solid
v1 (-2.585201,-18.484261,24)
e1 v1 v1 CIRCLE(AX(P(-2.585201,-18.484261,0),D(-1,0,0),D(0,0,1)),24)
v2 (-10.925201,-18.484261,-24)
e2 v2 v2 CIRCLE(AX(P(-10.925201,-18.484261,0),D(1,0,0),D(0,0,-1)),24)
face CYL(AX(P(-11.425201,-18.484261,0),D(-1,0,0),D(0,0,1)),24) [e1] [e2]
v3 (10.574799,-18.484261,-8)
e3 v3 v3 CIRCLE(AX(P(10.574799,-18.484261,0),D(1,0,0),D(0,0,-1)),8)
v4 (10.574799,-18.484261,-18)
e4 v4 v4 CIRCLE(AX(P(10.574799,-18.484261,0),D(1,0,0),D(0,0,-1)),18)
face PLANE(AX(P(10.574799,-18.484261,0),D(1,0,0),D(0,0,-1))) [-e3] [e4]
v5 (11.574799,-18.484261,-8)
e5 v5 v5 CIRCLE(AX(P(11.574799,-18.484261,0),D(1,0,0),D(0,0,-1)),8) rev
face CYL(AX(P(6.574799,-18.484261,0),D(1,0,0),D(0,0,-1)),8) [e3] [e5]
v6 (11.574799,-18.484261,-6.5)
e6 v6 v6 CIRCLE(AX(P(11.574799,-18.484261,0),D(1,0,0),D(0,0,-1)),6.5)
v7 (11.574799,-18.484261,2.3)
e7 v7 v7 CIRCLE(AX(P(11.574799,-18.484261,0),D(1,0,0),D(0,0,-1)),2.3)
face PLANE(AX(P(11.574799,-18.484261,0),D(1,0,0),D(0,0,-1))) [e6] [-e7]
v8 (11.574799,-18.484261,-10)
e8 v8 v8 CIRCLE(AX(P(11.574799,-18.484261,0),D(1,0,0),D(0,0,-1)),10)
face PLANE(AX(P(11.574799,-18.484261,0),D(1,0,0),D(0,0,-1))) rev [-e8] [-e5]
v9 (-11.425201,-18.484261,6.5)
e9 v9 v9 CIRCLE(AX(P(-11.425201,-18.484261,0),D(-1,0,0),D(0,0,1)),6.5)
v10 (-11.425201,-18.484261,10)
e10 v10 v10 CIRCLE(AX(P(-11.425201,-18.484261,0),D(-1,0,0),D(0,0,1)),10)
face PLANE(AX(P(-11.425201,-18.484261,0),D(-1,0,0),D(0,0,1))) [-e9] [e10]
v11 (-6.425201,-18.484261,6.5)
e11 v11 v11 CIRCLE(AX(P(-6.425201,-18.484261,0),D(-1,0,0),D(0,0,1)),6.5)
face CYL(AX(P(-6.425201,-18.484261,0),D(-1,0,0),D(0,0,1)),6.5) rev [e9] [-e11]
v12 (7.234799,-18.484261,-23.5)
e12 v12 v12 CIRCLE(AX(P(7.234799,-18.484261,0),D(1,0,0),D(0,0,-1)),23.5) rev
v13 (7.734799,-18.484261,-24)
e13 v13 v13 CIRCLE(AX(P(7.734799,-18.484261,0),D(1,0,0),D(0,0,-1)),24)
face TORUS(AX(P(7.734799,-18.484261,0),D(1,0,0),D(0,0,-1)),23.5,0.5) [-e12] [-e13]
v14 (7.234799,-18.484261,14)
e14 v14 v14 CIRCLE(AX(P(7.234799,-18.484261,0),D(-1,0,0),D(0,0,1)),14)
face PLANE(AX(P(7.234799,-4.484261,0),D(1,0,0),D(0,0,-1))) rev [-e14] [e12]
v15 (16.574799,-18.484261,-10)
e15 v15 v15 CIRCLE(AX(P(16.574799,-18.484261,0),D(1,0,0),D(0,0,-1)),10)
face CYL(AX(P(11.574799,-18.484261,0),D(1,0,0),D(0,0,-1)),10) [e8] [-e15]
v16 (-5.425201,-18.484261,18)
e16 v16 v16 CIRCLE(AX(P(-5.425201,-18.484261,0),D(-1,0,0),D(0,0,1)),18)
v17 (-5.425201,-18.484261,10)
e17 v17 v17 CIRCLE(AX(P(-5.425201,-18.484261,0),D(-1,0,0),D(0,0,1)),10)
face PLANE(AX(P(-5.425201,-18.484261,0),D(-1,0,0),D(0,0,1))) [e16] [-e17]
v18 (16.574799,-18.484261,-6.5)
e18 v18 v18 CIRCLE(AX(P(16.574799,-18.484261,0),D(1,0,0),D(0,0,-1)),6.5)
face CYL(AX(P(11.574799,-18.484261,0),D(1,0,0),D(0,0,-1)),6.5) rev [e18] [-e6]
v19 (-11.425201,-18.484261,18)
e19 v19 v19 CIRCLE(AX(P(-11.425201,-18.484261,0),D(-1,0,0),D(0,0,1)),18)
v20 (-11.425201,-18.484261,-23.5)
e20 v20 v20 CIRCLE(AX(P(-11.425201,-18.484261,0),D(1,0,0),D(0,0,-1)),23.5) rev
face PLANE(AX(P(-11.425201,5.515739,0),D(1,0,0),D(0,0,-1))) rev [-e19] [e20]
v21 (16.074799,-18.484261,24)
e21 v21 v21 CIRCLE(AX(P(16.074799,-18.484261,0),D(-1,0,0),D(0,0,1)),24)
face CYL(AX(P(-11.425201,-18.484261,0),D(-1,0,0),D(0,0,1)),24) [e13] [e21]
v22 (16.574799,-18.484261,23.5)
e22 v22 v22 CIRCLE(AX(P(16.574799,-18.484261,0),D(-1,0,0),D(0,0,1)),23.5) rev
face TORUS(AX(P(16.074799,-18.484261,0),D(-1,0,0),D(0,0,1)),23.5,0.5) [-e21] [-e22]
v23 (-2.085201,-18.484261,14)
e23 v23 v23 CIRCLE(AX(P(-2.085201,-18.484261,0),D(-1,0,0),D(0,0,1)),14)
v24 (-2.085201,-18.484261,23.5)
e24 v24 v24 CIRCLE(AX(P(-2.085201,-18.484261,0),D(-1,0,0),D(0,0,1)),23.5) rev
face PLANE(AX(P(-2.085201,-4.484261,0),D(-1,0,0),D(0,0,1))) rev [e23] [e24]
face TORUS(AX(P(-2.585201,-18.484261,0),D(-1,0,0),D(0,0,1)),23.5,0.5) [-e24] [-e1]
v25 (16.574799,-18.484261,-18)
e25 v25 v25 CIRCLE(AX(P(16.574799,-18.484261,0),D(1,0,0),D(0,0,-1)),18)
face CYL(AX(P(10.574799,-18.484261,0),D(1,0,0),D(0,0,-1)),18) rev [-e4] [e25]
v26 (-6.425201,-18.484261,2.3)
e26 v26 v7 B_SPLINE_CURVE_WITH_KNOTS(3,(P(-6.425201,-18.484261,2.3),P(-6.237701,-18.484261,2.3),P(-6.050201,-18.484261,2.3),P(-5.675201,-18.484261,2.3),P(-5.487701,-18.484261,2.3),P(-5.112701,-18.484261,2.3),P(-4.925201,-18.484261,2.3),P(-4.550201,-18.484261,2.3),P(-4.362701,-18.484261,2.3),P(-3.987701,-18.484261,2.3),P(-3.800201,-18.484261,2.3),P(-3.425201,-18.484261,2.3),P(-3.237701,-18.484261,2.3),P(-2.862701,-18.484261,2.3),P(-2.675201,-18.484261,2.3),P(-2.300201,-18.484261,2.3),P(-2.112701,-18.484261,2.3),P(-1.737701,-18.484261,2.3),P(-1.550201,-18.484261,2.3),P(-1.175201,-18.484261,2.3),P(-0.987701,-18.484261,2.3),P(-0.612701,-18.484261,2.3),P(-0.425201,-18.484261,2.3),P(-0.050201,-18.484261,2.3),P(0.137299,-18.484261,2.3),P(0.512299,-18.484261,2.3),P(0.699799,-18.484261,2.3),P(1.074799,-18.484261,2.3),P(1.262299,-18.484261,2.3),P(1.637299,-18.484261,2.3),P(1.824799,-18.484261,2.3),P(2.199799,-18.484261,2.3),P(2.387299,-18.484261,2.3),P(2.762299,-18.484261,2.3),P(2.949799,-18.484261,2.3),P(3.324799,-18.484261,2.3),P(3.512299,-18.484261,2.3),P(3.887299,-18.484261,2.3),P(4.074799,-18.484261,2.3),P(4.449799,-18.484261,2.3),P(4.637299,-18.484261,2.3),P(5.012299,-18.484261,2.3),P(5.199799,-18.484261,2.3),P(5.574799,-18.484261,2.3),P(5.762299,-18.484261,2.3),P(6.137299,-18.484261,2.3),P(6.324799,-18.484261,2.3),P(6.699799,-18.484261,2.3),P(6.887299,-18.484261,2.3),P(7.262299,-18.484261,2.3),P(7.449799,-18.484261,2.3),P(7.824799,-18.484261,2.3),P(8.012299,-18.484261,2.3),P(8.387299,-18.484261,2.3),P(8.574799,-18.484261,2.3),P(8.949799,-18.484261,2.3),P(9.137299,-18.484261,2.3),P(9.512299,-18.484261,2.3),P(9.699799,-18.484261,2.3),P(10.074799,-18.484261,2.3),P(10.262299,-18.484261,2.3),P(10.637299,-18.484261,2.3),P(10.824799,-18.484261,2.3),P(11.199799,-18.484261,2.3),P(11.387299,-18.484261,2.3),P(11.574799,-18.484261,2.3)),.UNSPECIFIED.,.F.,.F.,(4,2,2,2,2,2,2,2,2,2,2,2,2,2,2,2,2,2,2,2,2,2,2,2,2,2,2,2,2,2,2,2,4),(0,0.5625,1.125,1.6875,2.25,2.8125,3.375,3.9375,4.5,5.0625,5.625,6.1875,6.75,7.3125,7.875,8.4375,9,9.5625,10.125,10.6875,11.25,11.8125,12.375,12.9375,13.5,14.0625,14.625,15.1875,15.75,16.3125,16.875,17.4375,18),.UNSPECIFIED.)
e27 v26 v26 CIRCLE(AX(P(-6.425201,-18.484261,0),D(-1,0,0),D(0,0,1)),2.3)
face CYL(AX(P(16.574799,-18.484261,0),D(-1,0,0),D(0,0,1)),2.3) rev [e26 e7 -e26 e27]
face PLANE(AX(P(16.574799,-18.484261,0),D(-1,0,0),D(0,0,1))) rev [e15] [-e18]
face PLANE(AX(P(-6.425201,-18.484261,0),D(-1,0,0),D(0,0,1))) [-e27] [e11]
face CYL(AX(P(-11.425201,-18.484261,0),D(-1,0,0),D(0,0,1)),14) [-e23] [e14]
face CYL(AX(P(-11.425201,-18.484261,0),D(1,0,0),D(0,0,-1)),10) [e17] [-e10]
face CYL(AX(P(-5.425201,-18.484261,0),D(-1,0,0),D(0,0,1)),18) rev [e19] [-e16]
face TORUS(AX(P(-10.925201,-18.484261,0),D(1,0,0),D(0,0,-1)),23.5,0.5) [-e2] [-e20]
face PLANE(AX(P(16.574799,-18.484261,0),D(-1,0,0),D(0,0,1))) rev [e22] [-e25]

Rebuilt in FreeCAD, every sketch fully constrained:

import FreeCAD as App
import Part
import Sketcher
from FreeCAD import Vector
Q = App.Units.Quantity


def edges_at(feature, points):
    """Names of the edges that pass closest to the given points."""
    edges = feature.Shape.Edges
    near = lambda p: min(range(len(edges)), key=lambda i: edges[i].distToShape(Part.Vertex(*p))[0])
    return sorted({f"Edge{near(p) + 1}" for p in points})

doc = App.newDocument("Part")
params = doc.addObject("Spreadsheet::Sheet", "Params")
for row, (alias, value) in enumerate([
    ("sketch1_width", "28 mm"),
    ("sketch1_height", "10 mm"),
    ("sketch1_height2", "24 mm"),
    ("sketch1_width2", "9.32 mm"),
    ("revolution_angle", "360 deg"),
    ("sketch2_diameter", "4 mm"),
    ("fillet_radius", "0.5 mm"),
    ("sketch3_diameter", "36 mm"),
    ("sketch3_diameter2", "12 mm"),
    ("pocket2_length", "6 mm"),
    ("sketch4_diameter", "36 mm"),
    ("pocket3_length", "6 mm"),
    ("sketch5_diameter", "20 mm"),
    ("pad1_length", "6 mm"),
    ("sketch6_diameter", "16 mm"),
    ("pad2_length", "10 mm"),
    ("sketch7_diameter", "13 mm"),
    ("pocket4_length", "5 mm"),
    ("sketch8_diameter", "20 mm"),
    ("pad3_length", "5 mm"),
    ("sketch9_diameter", "13 mm"),
    ("pocket5_length", "5 mm"),
    ("sketch10_diameter", "4.6 mm"),
], start=1):
    params.set(f"A{row}", alias)
    params.set(f"B{row}", "=" + value)
    params.setAlias(f"B{row}", alias)

body = doc.addObject("PartDesign::Body", "Body")

sketch1 = body.newObject("Sketcher::SketchObject", "Sketch")
sketch1.AttachmentSupport = (doc.getObject("XY_Plane"), [""])
sketch1.MapMode = "FlatFace"
sketch1.addGeometry(Part.LineSegment(Vector(7.234799, -4.484261, 0), Vector(-2.085201, -4.484261, 0)), False)
sketch1.addGeometry(Part.LineSegment(Vector(-2.085201, -4.484261, 0), Vector(-2.085201, 5.515739, 0)), False)
sketch1.addGeometry(Part.LineSegment(Vector(-2.085201, 5.515739, 0), Vector(-11.425201, 5.515739, 0)), False)
sketch1.addGeometry(Part.LineSegment(Vector(-11.425201, 5.515739, 0), Vector(-11.425201, -18.484261, 0)), False)
sketch1.addGeometry(Part.LineSegment(Vector(-11.425201, -18.484261, 0), Vector(16.574799, -18.484261, 0)), False)
sketch1.addGeometry(Part.LineSegment(Vector(16.574799, -18.484261, 0), Vector(16.574799, 5.515739, 0)), False)
sketch1.addGeometry(Part.LineSegment(Vector(16.574799, 5.515739, 0), Vector(7.234799, 5.515739, 0)), False)
sketch1.addGeometry(Part.LineSegment(Vector(7.234799, 5.515739, 0), Vector(7.234799, -4.484261, 0)), False)
sketch1.addGeometry(Part.LineSegment(Vector(-11.425201, -18.484261, 0), Vector(16.574799, -18.484261, 0)), True)
sketch1.addConstraint(Sketcher.Constraint("Coincident", 0, 2, 1, 1))
sketch1.addConstraint(Sketcher.Constraint("Coincident", 1, 2, 2, 1))
sketch1.addConstraint(Sketcher.Constraint("Coincident", 2, 2, 3, 1))
sketch1.addConstraint(Sketcher.Constraint("Coincident", 3, 2, 4, 1))
sketch1.addConstraint(Sketcher.Constraint("Coincident", 4, 2, 5, 1))
sketch1.addConstraint(Sketcher.Constraint("Coincident", 5, 2, 6, 1))
sketch1.addConstraint(Sketcher.Constraint("Coincident", 6, 2, 7, 1))
sketch1.addConstraint(Sketcher.Constraint("Coincident", 7, 2, 0, 1))
sketch1.addConstraint(Sketcher.Constraint("Horizontal", 0))
sketch1.addConstraint(Sketcher.Constraint("Vertical", 1))
sketch1.addConstraint(Sketcher.Constraint("Horizontal", 2))
sketch1.addConstraint(Sketcher.Constraint("Vertical", 3))
sketch1.addConstraint(Sketcher.Constraint("Horizontal", 4))
sketch1.addConstraint(Sketcher.Constraint("Vertical", 5))
sketch1.addConstraint(Sketcher.Constraint("Horizontal", 6))
sketch1.addConstraint(Sketcher.Constraint("Vertical", 7))
sketch1.addConstraint(Sketcher.Constraint("Horizontal", 8))
sketch1.addConstraint(Sketcher.Constraint("Coincident", 8, 1, 3, 2))
sketch1.addConstraint(Sketcher.Constraint("Horizontal", 2, 2, 5, 2))
sketch1.addConstraint(Sketcher.Constraint("Vertical", 5, 2, 8, 2))
sketch1.addConstraint(Sketcher.Constraint("Equal", 2, 6))
sketch1.addConstraint(Sketcher.Constraint("DistanceX", 4, 1, 4, 2, Q("28 mm")))
sketch1.addConstraint(Sketcher.Constraint("DistanceY", 1, 1, 1, 2, Q("10 mm")))
sketch1.addConstraint(Sketcher.Constraint("DistanceY", 3, 2, 3, 1, Q("24 mm")))
sketch1.addConstraint(Sketcher.Constraint("DistanceX", 0, 2, 0, 1, Q("9.32 mm")))
sketch1.addConstraint(Sketcher.Constraint("DistanceX", 0, 2, -1, 1, Q("2.085201 mm")))
sketch1.addConstraint(Sketcher.Constraint("DistanceY", 0, 2, -1, 1, Q("4.484261 mm")))
sketch1.setExpression("Constraints[21]", "Params.sketch1_width")
sketch1.setExpression("Constraints[22]", "Params.sketch1_height")
sketch1.setExpression("Constraints[23]", "Params.sketch1_height2")
sketch1.setExpression("Constraints[24]", "Params.sketch1_width2")
revolution = body.newObject("PartDesign::Revolution", "Revolution")
revolution.Profile = sketch1
revolution.ReferenceAxis = (sketch1, ["Axis0"])
revolution.setExpression("Angle", "Params.revolution_angle")

sketch2 = body.newObject("Sketcher::SketchObject", "Sketch001")
sketch2.AttachmentSupport = (doc.getObject("YZ_Plane"), [""])
sketch2.MapMode = "FlatFace"
sketch2.AttachmentOffset = App.Placement(Vector(0, 0, 16.574799), App.Rotation())
sketch2.addGeometry(Part.Circle(Vector(-18.484261, 0, 0), Vector(0, 0, 1), 2), False)
sketch2.addConstraint(Sketcher.Constraint("PointOnObject", 0, 3, -1))
sketch2.addConstraint(Sketcher.Constraint("Diameter", 0, Q("4 mm")))
sketch2.addConstraint(Sketcher.Constraint("DistanceX", 0, 3, -1, 1, Q("18.484261 mm")))
sketch2.setExpression("Constraints[1]", "Params.sketch2_diameter")
pocket1 = body.newObject("PartDesign::Pocket", "Pocket")
pocket1.Profile = sketch2
pocket1.Type = "ThroughAll"
doc.recompute()

fillet = body.newObject("PartDesign::Fillet", "Fillet")
fillet.Base = (pocket1, edges_at(pocket1, [
    (-2.085, -18.484, -24),
    (7.235, -18.484, -24),
    (16.575, -18.484, -24),
    (-11.425, -18.484, -24),
]))
fillet.setExpression("Radius", "Params.fillet_radius")

sketch3 = body.newObject("Sketcher::SketchObject", "Sketch002")
sketch3.AttachmentSupport = (doc.getObject("YZ_Plane"), [""])
sketch3.MapMode = "FlatFace"
sketch3.AttachmentOffset = App.Placement(Vector(0, 0, 16.574799), App.Rotation())
sketch3.addGeometry(Part.Circle(Vector(-18.484261, 0, 0), Vector(0, 0, 1), 18), False)
sketch3.addGeometry(Part.Circle(Vector(-18.484261, 0, 0), Vector(0, 0, 1), 6), False)
sketch3.addConstraint(Sketcher.Constraint("Coincident", 1, 3, 0, 3))
sketch3.addConstraint(Sketcher.Constraint("PointOnObject", 0, 3, -1))
sketch3.addConstraint(Sketcher.Constraint("Diameter", 0, Q("36 mm")))
sketch3.addConstraint(Sketcher.Constraint("Diameter", 1, Q("12 mm")))
sketch3.addConstraint(Sketcher.Constraint("DistanceX", 0, 3, -1, 1, Q("18.484261 mm")))
sketch3.setExpression("Constraints[2]", "Params.sketch3_diameter")
sketch3.setExpression("Constraints[3]", "Params.sketch3_diameter2")
pocket2 = body.newObject("PartDesign::Pocket", "Pocket001")
pocket2.Profile = sketch3
pocket2.setExpression("Length", "Params.pocket2_length")

sketch4 = body.newObject("Sketcher::SketchObject", "Sketch003")
sketch4.AttachmentSupport = (doc.getObject("YZ_Plane"), [""])
sketch4.MapMode = "FlatFace"
sketch4.AttachmentOffset = App.Placement(Vector(0, 0, -5.425201), App.Rotation())
sketch4.addGeometry(Part.Circle(Vector(-18.484261, 0, 0), Vector(0, 0, 1), 18), False)
sketch4.addConstraint(Sketcher.Constraint("PointOnObject", 0, 3, -1))
sketch4.addConstraint(Sketcher.Constraint("Diameter", 0, Q("36 mm")))
sketch4.addConstraint(Sketcher.Constraint("DistanceX", 0, 3, -1, 1, Q("18.484261 mm")))
sketch4.setExpression("Constraints[1]", "Params.sketch4_diameter")
pocket3 = body.newObject("PartDesign::Pocket", "Pocket002")
pocket3.Profile = sketch4
pocket3.setExpression("Length", "Params.pocket3_length")

sketch5 = body.newObject("Sketcher::SketchObject", "Sketch004")
sketch5.AttachmentSupport = (doc.getObject("YZ_Plane"), [""])
sketch5.MapMode = "FlatFace"
sketch5.AttachmentOffset = App.Placement(Vector(0, 0, -5.425201), App.Rotation())
sketch5.addGeometry(Part.Circle(Vector(-18.484261, 0, 0), Vector(0, 0, 1), 10), False)
sketch5.addConstraint(Sketcher.Constraint("PointOnObject", 0, 3, -1))
sketch5.addConstraint(Sketcher.Constraint("Diameter", 0, Q("20 mm")))
sketch5.addConstraint(Sketcher.Constraint("DistanceX", 0, 3, -1, 1, Q("18.484261 mm")))
sketch5.setExpression("Constraints[1]", "Params.sketch5_diameter")
pad1 = body.newObject("PartDesign::Pad", "Pad")
pad1.Profile = sketch5
pad1.setExpression("Length", "Params.pad1_length")
pad1.Reversed = True

sketch6 = body.newObject("Sketcher::SketchObject", "Sketch005")
sketch6.AttachmentSupport = (doc.getObject("YZ_Plane"), [""])
sketch6.MapMode = "FlatFace"
sketch6.AttachmentOffset = App.Placement(Vector(0, 0, 16.574799), App.Rotation())
sketch6.addGeometry(Part.Circle(Vector(-18.484261, 0, 0), Vector(0, 0, 1), 8), False)
sketch6.addConstraint(Sketcher.Constraint("PointOnObject", 0, 3, -1))
sketch6.addConstraint(Sketcher.Constraint("Diameter", 0, Q("16 mm")))
sketch6.addConstraint(Sketcher.Constraint("DistanceX", 0, 3, -1, 1, Q("18.484261 mm")))
sketch6.setExpression("Constraints[1]", "Params.sketch6_diameter")
pad2 = body.newObject("PartDesign::Pad", "Pad001")
pad2.Profile = sketch6
pad2.setExpression("Length", "Params.pad2_length")
pad2.Reversed = True

sketch7 = body.newObject("Sketcher::SketchObject", "Sketch006")
sketch7.AttachmentSupport = (doc.getObject("YZ_Plane"), [""])
sketch7.MapMode = "FlatFace"
sketch7.AttachmentOffset = App.Placement(Vector(0, 0, -11.425201), App.Rotation())
sketch7.addGeometry(Part.Circle(Vector(-18.484261, 0, 0), Vector(0, 0, 1), 6.5), False)
sketch7.addConstraint(Sketcher.Constraint("PointOnObject", 0, 3, -1))
sketch7.addConstraint(Sketcher.Constraint("Diameter", 0, Q("13 mm")))
sketch7.addConstraint(Sketcher.Constraint("DistanceX", 0, 3, -1, 1, Q("18.484261 mm")))
sketch7.setExpression("Constraints[1]", "Params.sketch7_diameter")
pocket4 = body.newObject("PartDesign::Pocket", "Pocket003")
pocket4.Profile = sketch7
pocket4.setExpression("Length", "Params.pocket4_length")
pocket4.Reversed = True

sketch8 = body.newObject("Sketcher::SketchObject", "Sketch007")
sketch8.AttachmentSupport = (doc.getObject("YZ_Plane"), [""])
sketch8.MapMode = "FlatFace"
sketch8.AttachmentOffset = App.Placement(Vector(0, 0, 16.574799), App.Rotation())
sketch8.addGeometry(Part.Circle(Vector(-18.484261, 0, 0), Vector(0, 0, 1), 10), False)
sketch8.addConstraint(Sketcher.Constraint("PointOnObject", 0, 3, -1))
sketch8.addConstraint(Sketcher.Constraint("Diameter", 0, Q("20 mm")))
sketch8.addConstraint(Sketcher.Constraint("DistanceX", 0, 3, -1, 1, Q("18.484261 mm")))
sketch8.setExpression("Constraints[1]", "Params.sketch8_diameter")
pad3 = body.newObject("PartDesign::Pad", "Pad002")
pad3.Profile = sketch8
pad3.setExpression("Length", "Params.pad3_length")
pad3.Reversed = True

sketch9 = body.newObject("Sketcher::SketchObject", "Sketch008")
sketch9.AttachmentSupport = (doc.getObject("YZ_Plane"), [""])
sketch9.MapMode = "FlatFace"
sketch9.AttachmentOffset = App.Placement(Vector(0, 0, 11.574799), App.Rotation())
sketch9.addGeometry(Part.Circle(Vector(-18.484261, 0, 0), Vector(0, 0, 1), 6.5), False)
sketch9.addConstraint(Sketcher.Constraint("PointOnObject", 0, 3, -1))
sketch9.addConstraint(Sketcher.Constraint("Diameter", 0, Q("13 mm")))
sketch9.addConstraint(Sketcher.Constraint("DistanceX", 0, 3, -1, 1, Q("18.484261 mm")))
sketch9.setExpression("Constraints[1]", "Params.sketch9_diameter")
pocket5 = body.newObject("PartDesign::Pocket", "Pocket004")
pocket5.Profile = sketch9
pocket5.setExpression("Length", "Params.pocket5_length")
pocket5.Reversed = True

sketch10 = body.newObject("Sketcher::SketchObject", "Sketch009")
sketch10.AttachmentSupport = (doc.getObject("YZ_Plane"), [""])
sketch10.MapMode = "FlatFace"
sketch10.AttachmentOffset = App.Placement(Vector(0, 0, -11.425201), App.Rotation())
sketch10.addGeometry(Part.Circle(Vector(-18.484261, 0, 0), Vector(0, 0, 1), 2.3), False)
sketch10.addConstraint(Sketcher.Constraint("PointOnObject", 0, 3, -1))
sketch10.addConstraint(Sketcher.Constraint("Diameter", 0, Q("4.6 mm")))
sketch10.addConstraint(Sketcher.Constraint("DistanceX", 0, 3, -1, 1, Q("18.484261 mm")))
sketch10.setExpression("Constraints[1]", "Params.sketch10_diameter")
pocket6 = body.newObject("PartDesign::Pocket", "Pocket005")
pocket6.Profile = sketch10
pocket6.Type = "ThroughAll"
pocket6.Reversed = True

doc.recompute()
